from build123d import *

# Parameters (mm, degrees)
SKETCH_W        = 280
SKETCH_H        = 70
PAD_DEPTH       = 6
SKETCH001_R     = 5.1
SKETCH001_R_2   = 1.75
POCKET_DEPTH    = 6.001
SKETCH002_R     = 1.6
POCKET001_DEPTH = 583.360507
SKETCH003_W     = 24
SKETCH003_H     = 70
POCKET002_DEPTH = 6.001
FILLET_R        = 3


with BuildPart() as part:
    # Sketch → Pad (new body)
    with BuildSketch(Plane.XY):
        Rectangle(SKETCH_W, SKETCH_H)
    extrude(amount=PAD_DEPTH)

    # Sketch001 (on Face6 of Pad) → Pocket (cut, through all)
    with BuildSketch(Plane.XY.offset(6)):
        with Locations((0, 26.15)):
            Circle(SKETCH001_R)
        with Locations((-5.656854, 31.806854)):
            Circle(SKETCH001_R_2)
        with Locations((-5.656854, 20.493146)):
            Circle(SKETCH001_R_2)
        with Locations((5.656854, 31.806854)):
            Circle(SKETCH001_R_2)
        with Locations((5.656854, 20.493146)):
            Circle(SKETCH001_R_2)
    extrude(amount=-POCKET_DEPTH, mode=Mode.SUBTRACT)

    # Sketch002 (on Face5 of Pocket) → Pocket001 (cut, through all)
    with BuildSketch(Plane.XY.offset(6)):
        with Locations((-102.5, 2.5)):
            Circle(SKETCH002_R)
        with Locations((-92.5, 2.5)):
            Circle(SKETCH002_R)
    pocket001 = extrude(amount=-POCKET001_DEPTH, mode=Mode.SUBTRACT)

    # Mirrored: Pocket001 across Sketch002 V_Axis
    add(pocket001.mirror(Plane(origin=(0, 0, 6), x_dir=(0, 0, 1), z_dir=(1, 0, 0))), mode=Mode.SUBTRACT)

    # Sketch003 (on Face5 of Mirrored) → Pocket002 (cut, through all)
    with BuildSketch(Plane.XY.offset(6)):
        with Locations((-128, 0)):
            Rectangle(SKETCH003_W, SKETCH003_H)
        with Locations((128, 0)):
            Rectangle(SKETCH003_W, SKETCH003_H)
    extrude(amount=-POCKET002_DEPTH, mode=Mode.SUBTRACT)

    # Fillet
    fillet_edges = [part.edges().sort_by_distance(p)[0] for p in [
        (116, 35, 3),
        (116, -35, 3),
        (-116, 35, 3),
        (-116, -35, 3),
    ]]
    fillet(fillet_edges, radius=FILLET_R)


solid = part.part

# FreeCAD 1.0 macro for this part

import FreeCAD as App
import Part
import Sketcher
from FreeCAD import Vector


def edges_at(feature, points):
    """Names of the edges that pass closest to the given points."""
    edges = feature.Shape.Edges
    near = lambda p: min(range(len(edges)), key=lambda i: edges[i].distToShape(Part.Vertex(*p))[0])
    return sorted({f"Edge{near(p) + 1}" for p in points})

doc = App.newDocument("Part")
body = doc.addObject("PartDesign::Body", "Body")

# Sketch on XY plane
sketch1 = body.newObject("Sketcher::SketchObject", "Sketch")
sketch1.AttachmentSupport = (doc.getObject("XY_Plane"), [""])
sketch1.MapMode = "FlatFace"
sketch1.addGeometry([
    Part.LineSegment(Vector(-140, 35, 0), Vector(-140, -35, 0)),
    Part.LineSegment(Vector(-140, -35, 0), Vector(140, -35, 0)),
    Part.LineSegment(Vector(140, -35, 0), Vector(140, 35, 0)),
    Part.LineSegment(Vector(140, 35, 0), Vector(-140, 35, 0)),
], False)
sketch1.addConstraint([
    Sketcher.Constraint("Coincident", 0, 2, 1, 1),
    Sketcher.Constraint("Coincident", 1, 2, 2, 1),
    Sketcher.Constraint("Coincident", 2, 2, 3, 1),
    Sketcher.Constraint("Coincident", 3, 2, 0, 1),
    Sketcher.Constraint("Vertical", 0),
    Sketcher.Constraint("Horizontal", 1),
    Sketcher.Constraint("Vertical", 2),
    Sketcher.Constraint("Horizontal", 3),
    Sketcher.Constraint("Symmetric", 0, 2, 2, 2, -1, 1),
    Sketcher.Constraint("DistanceX", 1, 1, 1, 2, 280.0),
    Sketcher.Constraint("DistanceY", 0, 2, 0, 1, 70.0),
])
pad1 = body.newObject("PartDesign::Pad", "Pad")
pad1.Profile = sketch1
pad1.Length = 6

# Sketch on XY plane
sketch2 = body.newObject("Sketcher::SketchObject", "Sketch001")
sketch2.AttachmentSupport = (doc.getObject("XY_Plane"), [""])
sketch2.MapMode = "FlatFace"
sketch2.AttachmentOffset = App.Placement(Vector(0, 0, 6), App.Rotation())
sketch2.addGeometry([
    Part.Circle(Vector(0, 26.1, 0), Vector(0, 0, 1), 5.1),  # 0
    Part.Circle(Vector(-5.7, 31.8, 0), Vector(0, 0, 1), 1.8),  # 1
    Part.Circle(Vector(-5.7, 20.5, 0), Vector(0, 0, 1), 1.8),  # 2
    Part.Circle(Vector(5.7, 31.8, 0), Vector(0, 0, 1), 1.8),  # 3
    Part.Circle(Vector(5.7, 20.5, 0), Vector(0, 0, 1), 1.8),  # 4
], False)
sketch2.addConstraint([
    Sketcher.Constraint("Equal", 1, 2),
    Sketcher.Constraint("Equal", 2, 3),
    Sketcher.Constraint("Equal", 3, 4),
    Sketcher.Constraint("Symmetric", 1, 3, 3, 3, -2),
    Sketcher.Constraint("Symmetric", 2, 3, 4, 3, -2),
    Sketcher.Constraint("PointOnObject", 0, 3, -2),
    Sketcher.Constraint("Vertical", 1, 3, 2, 3),
    Sketcher.Constraint("Diameter", 0, 10.2),
    Sketcher.Constraint("Diameter", 1, 3.5),
    Sketcher.Constraint("DistanceY", -1, 1, 0, 3, 26.15),
    Sketcher.Constraint("DistanceY", 2, 3, 1, 3, 11.313708),
    Sketcher.Constraint("DistanceX", 1, 3, -1, 1, 5.656854),
    Sketcher.Constraint("DistanceY", -1, 1, 1, 3, 31.806854),
])
pocket1 = body.newObject("PartDesign::Pocket", "Pocket")
pocket1.Profile = sketch2
pocket1.Type = "ThroughAll"

# Sketch on XY plane
sketch3 = body.newObject("Sketcher::SketchObject", "Sketch002")
sketch3.AttachmentSupport = (doc.getObject("XY_Plane"), [""])
sketch3.MapMode = "FlatFace"
sketch3.AttachmentOffset = App.Placement(Vector(0, 0, 6), App.Rotation())
sketch3.addGeometry([
    Part.Circle(Vector(-102.5, 2.5, 0), Vector(0, 0, 1), 1.6),
    Part.Circle(Vector(-92.5, 2.5, 0), Vector(0, 0, 1), 1.6),
], False)
sketch3.addConstraint([
    Sketcher.Constraint("Equal", 0, 1),
    Sketcher.Constraint("Horizontal", 0, 3, 1, 3),
    Sketcher.Constraint("Diameter", 0, 3.2),
    Sketcher.Constraint("DistanceX", 0, 3, 1, 3, 10.0),
    Sketcher.Constraint("DistanceX", 0, 3, -1, 1, 102.5),
    Sketcher.Constraint("DistanceY", -1, 1, 0, 3, 2.5),
])
pocket2 = body.newObject("PartDesign::Pocket", "Pocket001")
pocket2.Profile = sketch3
pocket2.Type = "ThroughAll"
doc.recompute()

mirrored = body.newObject("PartDesign::Mirrored", "Mirrored")
mirrored.Originals = [pocket2]
mirrored.MirrorPlane = (doc.getObject("YZ_Plane"), [""])
body.Tip = mirrored

# Sketch on XY plane
sketch4 = body.newObject("Sketcher::SketchObject", "Sketch003")
sketch4.AttachmentSupport = (doc.getObject("XY_Plane"), [""])
sketch4.MapMode = "FlatFace"
sketch4.AttachmentOffset = App.Placement(Vector(0, 0, 6), App.Rotation())
sketch4.addGeometry([
    Part.LineSegment(Vector(-140, 35, 0), Vector(-140, -35, 0)),  # 0
    Part.LineSegment(Vector(-140, -35, 0), Vector(-116, -35, 0)),  # 1
    Part.LineSegment(Vector(-116, -35, 0), Vector(-116, 35, 0)),  # 2
    Part.LineSegment(Vector(-116, 35, 0), Vector(-140, 35, 0)),  # 3
    Part.LineSegment(Vector(116, 35, 0), Vector(116, -35, 0)),  # 4
    Part.LineSegment(Vector(116, -35, 0), Vector(140, -35, 0)),  # 5
    Part.LineSegment(Vector(140, -35, 0), Vector(140, 35, 0)),  # 6
    Part.LineSegment(Vector(140, 35, 0), Vector(116, 35, 0)),  # 7
], False)
sketch4.addConstraint([
    Sketcher.Constraint("Coincident", 0, 2, 1, 1),
    Sketcher.Constraint("Coincident", 1, 2, 2, 1),
    Sketcher.Constraint("Coincident", 2, 2, 3, 1),
    Sketcher.Constraint("Coincident", 3, 2, 0, 1),
    Sketcher.Constraint("Coincident", 4, 2, 5, 1),
    Sketcher.Constraint("Coincident", 5, 2, 6, 1),
    Sketcher.Constraint("Coincident", 6, 2, 7, 1),
    Sketcher.Constraint("Coincident", 7, 2, 4, 1),
    Sketcher.Constraint("Vertical", 0),
    Sketcher.Constraint("Horizontal", 1),
    Sketcher.Constraint("Vertical", 2),
    Sketcher.Constraint("Horizontal", 3),
    Sketcher.Constraint("Vertical", 4),
    Sketcher.Constraint("Horizontal", 5),
    Sketcher.Constraint("Vertical", 6),
    Sketcher.Constraint("Horizontal", 7),
    Sketcher.Constraint("Symmetric", 2, 2, 4, 2, -1, 1),
    Sketcher.Constraint("Symmetric", 0, 2, 6, 2, -1, 1),
    Sketcher.Constraint("Horizontal", 1, 2, 4, 2),
    Sketcher.Constraint("DistanceX", 1, 1, 1, 2, 24.0),
    Sketcher.Constraint("DistanceY", 0, 2, 0, 1, 70.0),
    Sketcher.Constraint("DistanceX", 0, 2, -1, 1, 140.0),
])
pocket3 = body.newObject("PartDesign::Pocket", "Pocket002")
pocket3.Profile = sketch4
pocket3.Type = "ThroughAll"
doc.recompute()

fillet = body.newObject("PartDesign::Fillet", "Fillet")
fillet.Base = (pocket3, edges_at(pocket3, [
    (116, 35, 3),
    (116, -35, 3),
    (-116, 35, 3),
    (-116, -35, 3),
]))
fillet.Radius = 3

doc.recompute()
